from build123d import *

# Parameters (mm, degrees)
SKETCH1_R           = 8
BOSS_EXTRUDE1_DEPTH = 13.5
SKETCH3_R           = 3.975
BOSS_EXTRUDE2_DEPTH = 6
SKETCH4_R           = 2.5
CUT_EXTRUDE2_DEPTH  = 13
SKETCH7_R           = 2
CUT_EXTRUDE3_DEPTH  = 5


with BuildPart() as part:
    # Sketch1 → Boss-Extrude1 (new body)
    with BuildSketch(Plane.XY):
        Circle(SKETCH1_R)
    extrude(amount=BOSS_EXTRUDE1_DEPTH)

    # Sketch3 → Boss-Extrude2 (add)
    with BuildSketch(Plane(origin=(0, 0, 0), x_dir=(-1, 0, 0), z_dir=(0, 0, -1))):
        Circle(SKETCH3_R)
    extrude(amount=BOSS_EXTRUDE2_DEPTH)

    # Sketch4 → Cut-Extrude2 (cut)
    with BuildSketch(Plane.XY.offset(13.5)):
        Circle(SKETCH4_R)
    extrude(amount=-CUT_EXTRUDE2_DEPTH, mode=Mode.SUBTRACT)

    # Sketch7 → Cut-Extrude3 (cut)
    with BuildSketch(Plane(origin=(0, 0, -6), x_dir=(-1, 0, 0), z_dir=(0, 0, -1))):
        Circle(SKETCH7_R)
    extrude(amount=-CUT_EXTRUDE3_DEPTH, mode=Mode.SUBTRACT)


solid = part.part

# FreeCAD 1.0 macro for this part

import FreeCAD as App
import Part
import Sketcher
from FreeCAD import Vector

doc = App.newDocument("Part")
body = doc.addObject("PartDesign::Body", "Body")

sketch1 = doc.addObject("Sketcher::SketchObject", "Sketch")
body.addObject(sketch1)
sketch1.AttachmentSupport = (doc.XY_Plane, [""])
sketch1.MapMode = "FlatFace"
sketch1.addGeometry(Part.Circle(Vector(0, 0, 0), Vector(0, 0, 1), 8), False)
sketch1.addConstraint(Sketcher.Constraint("Coincident", 0, 3, -1, 1))
sketch1.addConstraint(Sketcher.Constraint("Diameter", 0, 16.0))
pad1 = doc.addObject("PartDesign::Pad", "Pad")
body.addObject(pad1)
pad1.Profile = sketch1
pad1.Length = 13.5

sketch2 = doc.addObject("Sketcher::SketchObject", "Sketch001")
body.addObject(sketch2)
sketch2.AttachmentSupport = (doc.XY_Plane, [""])
sketch2.MapMode = "FlatFace"
sketch2.addGeometry(Part.Circle(Vector(0, 0, 0), Vector(0, 0, 1), 4), False)
sketch2.addConstraint(Sketcher.Constraint("Coincident", 0, 3, -1, 1))
sketch2.addConstraint(Sketcher.Constraint("Diameter", 0, 7.95))
pad2 = doc.addObject("PartDesign::Pad", "Pad001")
body.addObject(pad2)
pad2.Profile = sketch2
pad2.Length = 6
pad2.Reversed = True

sketch3 = doc.addObject("Sketcher::SketchObject", "Sketch002")
body.addObject(sketch3)
sketch3.AttachmentSupport = (doc.XY_Plane, [""])
sketch3.MapMode = "FlatFace"
sketch3.AttachmentOffset = App.Placement(Vector(0, 0, 13.5), App.Rotation())
sketch3.addGeometry(Part.Circle(Vector(0, 0, 0), Vector(0, 0, 1), 2.5), False)
sketch3.addConstraint(Sketcher.Constraint("Coincident", 0, 3, -1, 1))
sketch3.addConstraint(Sketcher.Constraint("Diameter", 0, 5.0))
pocket1 = doc.addObject("PartDesign::Pocket", "Pocket")
body.addObject(pocket1)
pocket1.Profile = sketch3
pocket1.Length = 13

sketch4 = doc.addObject("Sketcher::SketchObject", "Sketch003")
body.addObject(sketch4)
sketch4.AttachmentSupport = (doc.XY_Plane, [""])
sketch4.MapMode = "FlatFace"
sketch4.AttachmentOffset = App.Placement(Vector(0, 0, -6), App.Rotation())
sketch4.addGeometry(Part.Circle(Vector(0, 0, 0), Vector(0, 0, 1), 2), False)
sketch4.addConstraint(Sketcher.Constraint("Coincident", 0, 3, -1, 1))
sketch4.addConstraint(Sketcher.Constraint("Diameter", 0, 4.0))
pocket2 = doc.addObject("PartDesign::Pocket", "Pocket001")
body.addObject(pocket2)
pocket2.Profile = sketch4
pocket2.Length = 5
pocket2.Reversed = True

doc.recompute()
